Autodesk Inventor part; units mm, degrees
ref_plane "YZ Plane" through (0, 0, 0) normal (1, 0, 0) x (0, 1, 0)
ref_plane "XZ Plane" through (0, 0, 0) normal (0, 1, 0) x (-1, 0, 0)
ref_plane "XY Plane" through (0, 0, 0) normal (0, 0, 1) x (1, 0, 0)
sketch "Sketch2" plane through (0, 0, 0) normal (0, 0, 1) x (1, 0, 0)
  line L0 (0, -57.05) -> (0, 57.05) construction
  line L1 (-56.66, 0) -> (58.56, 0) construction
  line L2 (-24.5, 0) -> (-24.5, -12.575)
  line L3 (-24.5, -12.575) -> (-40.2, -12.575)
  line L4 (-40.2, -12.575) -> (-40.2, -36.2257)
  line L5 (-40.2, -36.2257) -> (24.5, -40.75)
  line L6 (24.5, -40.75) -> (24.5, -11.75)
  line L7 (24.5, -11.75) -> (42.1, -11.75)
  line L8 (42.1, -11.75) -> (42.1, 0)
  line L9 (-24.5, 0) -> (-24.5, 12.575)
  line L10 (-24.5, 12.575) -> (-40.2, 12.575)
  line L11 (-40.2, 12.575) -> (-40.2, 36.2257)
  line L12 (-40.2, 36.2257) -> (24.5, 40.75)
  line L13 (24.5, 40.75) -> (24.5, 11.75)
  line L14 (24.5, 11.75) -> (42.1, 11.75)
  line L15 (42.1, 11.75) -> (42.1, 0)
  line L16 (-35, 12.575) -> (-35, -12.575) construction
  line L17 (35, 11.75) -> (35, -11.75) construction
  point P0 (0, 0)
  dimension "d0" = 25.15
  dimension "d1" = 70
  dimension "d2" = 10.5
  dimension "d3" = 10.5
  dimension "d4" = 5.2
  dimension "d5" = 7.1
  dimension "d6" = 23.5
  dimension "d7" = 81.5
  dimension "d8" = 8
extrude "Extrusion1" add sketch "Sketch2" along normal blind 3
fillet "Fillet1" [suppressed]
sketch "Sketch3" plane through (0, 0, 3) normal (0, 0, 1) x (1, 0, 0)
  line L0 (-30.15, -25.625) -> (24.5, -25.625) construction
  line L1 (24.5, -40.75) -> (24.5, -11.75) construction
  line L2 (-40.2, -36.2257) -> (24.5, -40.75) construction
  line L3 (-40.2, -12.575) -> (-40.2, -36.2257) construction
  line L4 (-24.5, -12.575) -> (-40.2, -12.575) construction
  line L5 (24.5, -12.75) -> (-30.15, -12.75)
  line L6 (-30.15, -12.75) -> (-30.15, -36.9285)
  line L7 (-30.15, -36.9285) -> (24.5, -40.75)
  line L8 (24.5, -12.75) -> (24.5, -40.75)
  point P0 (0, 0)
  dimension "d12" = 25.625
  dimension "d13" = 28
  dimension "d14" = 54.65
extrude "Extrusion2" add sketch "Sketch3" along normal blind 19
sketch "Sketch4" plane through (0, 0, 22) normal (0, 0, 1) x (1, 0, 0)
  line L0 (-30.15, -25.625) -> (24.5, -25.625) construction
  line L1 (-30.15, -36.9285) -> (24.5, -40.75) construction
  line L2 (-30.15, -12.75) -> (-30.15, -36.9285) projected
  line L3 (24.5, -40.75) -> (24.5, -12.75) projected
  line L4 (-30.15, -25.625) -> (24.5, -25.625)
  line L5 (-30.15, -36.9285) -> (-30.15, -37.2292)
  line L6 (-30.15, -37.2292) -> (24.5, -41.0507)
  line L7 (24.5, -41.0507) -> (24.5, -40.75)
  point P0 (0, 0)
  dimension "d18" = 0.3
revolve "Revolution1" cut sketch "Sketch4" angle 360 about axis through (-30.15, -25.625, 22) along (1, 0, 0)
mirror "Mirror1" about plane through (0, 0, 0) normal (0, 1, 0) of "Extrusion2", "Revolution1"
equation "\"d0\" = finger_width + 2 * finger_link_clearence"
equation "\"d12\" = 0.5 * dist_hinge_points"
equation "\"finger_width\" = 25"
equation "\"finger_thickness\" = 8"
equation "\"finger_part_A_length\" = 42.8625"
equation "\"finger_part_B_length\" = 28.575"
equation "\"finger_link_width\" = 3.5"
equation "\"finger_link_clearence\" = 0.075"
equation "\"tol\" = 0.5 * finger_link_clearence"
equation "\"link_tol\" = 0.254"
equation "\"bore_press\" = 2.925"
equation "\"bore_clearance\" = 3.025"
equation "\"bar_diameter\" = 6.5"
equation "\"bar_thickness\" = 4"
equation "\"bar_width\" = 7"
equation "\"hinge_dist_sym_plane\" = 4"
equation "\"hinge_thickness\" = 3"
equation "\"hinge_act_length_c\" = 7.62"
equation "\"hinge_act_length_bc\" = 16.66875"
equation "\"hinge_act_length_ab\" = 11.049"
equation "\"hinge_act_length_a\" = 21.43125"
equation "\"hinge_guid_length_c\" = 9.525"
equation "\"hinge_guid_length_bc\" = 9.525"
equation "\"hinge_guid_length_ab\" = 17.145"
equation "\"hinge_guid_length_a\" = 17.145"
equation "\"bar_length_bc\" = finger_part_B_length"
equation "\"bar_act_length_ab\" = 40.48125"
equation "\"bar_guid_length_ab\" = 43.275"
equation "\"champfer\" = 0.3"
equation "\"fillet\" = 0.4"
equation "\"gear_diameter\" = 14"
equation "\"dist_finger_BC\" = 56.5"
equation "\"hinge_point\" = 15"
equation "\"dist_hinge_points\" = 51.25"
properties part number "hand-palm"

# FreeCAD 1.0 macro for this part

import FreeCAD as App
import Part
import Sketcher
from FreeCAD import Vector
Q = App.Units.Quantity

doc = App.newDocument("Part")
body = doc.addObject("PartDesign::Body", "Body")

sketch1 = doc.addObject("Sketcher::SketchObject", "Sketch")
body.addObject(sketch1)
sketch1.AttachmentSupport = (doc.XY_Plane, [""])
sketch1.MapMode = "FlatFace"
sketch1.addGeometry([
    Part.LineSegment(Vector(-24.5, 12.575, 0), Vector(-24.5, -12.575, 0)),
    Part.LineSegment(Vector(-24.5, -12.575, 0), Vector(-40.2, -12.575, 0)),
    Part.LineSegment(Vector(-40.2, -12.575, 0), Vector(-40.2, -36.2257, 0)),
    Part.LineSegment(Vector(-40.2, -36.2257, 0), Vector(24.5, -40.75, 0)),
    Part.LineSegment(Vector(24.5, -40.75, 0), Vector(24.5, -11.75, 0)),
    Part.LineSegment(Vector(24.5, -11.75, 0), Vector(42.1, -11.75, 0)),
    Part.LineSegment(Vector(42.1, -11.75, 0), Vector(42.1, 11.75, 0)),
    Part.LineSegment(Vector(42.1, 11.75, 0), Vector(24.5, 11.75, 0)),
    Part.LineSegment(Vector(24.5, 11.75, 0), Vector(24.5, 40.75, 0)),
    Part.LineSegment(Vector(24.5, 40.75, 0), Vector(-40.2, 36.2257, 0)),
    Part.LineSegment(Vector(-40.2, 36.2257, 0), Vector(-40.2, 12.575, 0)),
    Part.LineSegment(Vector(-40.2, 12.575, 0), Vector(-24.5, 12.575, 0)),
], False)
sketch1.addConstraint([
    Sketcher.Constraint("Coincident", 0, 2, 1, 1),
    Sketcher.Constraint("Coincident", 1, 2, 2, 1),
    Sketcher.Constraint("Coincident", 2, 2, 3, 1),
    Sketcher.Constraint("Coincident", 3, 2, 4, 1),
    Sketcher.Constraint("Coincident", 4, 2, 5, 1),
    Sketcher.Constraint("Coincident", 5, 2, 6, 1),
    Sketcher.Constraint("Coincident", 6, 2, 7, 1),
    Sketcher.Constraint("Coincident", 7, 2, 8, 1),
    Sketcher.Constraint("Coincident", 8, 2, 9, 1),
    Sketcher.Constraint("Coincident", 9, 2, 10, 1),
    Sketcher.Constraint("Coincident", 10, 2, 11, 1),
    Sketcher.Constraint("Coincident", 11, 2, 0, 1),
    Sketcher.Constraint("Vertical", 0),
    Sketcher.Constraint("Horizontal", 1),
    Sketcher.Constraint("Vertical", 2),
    Sketcher.Constraint("Vertical", 4),
    Sketcher.Constraint("Horizontal", 5),
    Sketcher.Constraint("Vertical", 6),
    Sketcher.Constraint("Horizontal", 7),
    Sketcher.Constraint("Vertical", 8),
    Sketcher.Constraint("Vertical", 10),
    Sketcher.Constraint("Horizontal", 11),
    Sketcher.Constraint("Symmetric", 4, 2, 7, 2, -1),
    Sketcher.Constraint("Symmetric", 2, 2, 9, 2, -1),
    Sketcher.Constraint("Equal", 4, 8),
    Sketcher.Constraint("Equal", 2, 10),
    Sketcher.Constraint("DistanceY", 6, 1, 6, 2, 23.5),
    Sketcher.Constraint("DistanceY", 0, 2, 0, 1, 25.15),
    Sketcher.Constraint("DistanceY", 4, 1, 4, 2, 29.0),
    Sketcher.Constraint("Angle", 3, Q("-4 deg")),
    Sketcher.Constraint("DistanceX", 1, 2, 1, 1, 15.7),
    Sketcher.Constraint("DistanceX", 5, 1, 5, 2, 17.6),
    Sketcher.Constraint("DistanceX", 0, 2, 3, 2, 49.0),
    Sketcher.Constraint("DistanceX", 0, 2, -1, 1, 24.5),
])
pad1 = doc.addObject("PartDesign::Pad", "Pad")
body.addObject(pad1)
pad1.Profile = sketch1
pad1.Length = 3

sketch2 = doc.addObject("Sketcher::SketchObject", "Sketch001")
body.addObject(sketch2)
sketch2.AttachmentSupport = (doc.XY_Plane, [""])
sketch2.MapMode = "FlatFace"
sketch2.AttachmentOffset = App.Placement(Vector(0, 0, 3), App.Rotation())
sketch2.addGeometry([
    Part.LineSegment(Vector(24.5, -40.75, 0), Vector(24.5, -12.75, 0)),
    Part.LineSegment(Vector(24.5, -12.75, 0), Vector(-30.15, -12.75, 0)),
    Part.LineSegment(Vector(-30.15, -12.75, 0), Vector(-30.15, -36.9285, 0)),
    Part.LineSegment(Vector(-30.15, -36.9285, 0), Vector(24.5, -40.75, 0)),
], False)
sketch2.addConstraint([
    Sketcher.Constraint("Coincident", 0, 2, 1, 1),
    Sketcher.Constraint("Coincident", 1, 2, 2, 1),
    Sketcher.Constraint("Coincident", 2, 2, 3, 1),
    Sketcher.Constraint("Coincident", 3, 2, 0, 1),
    Sketcher.Constraint("Vertical", 0),
    Sketcher.Constraint("Horizontal", 1),
    Sketcher.Constraint("Vertical", 2),
    Sketcher.Constraint("DistanceY", 0, 1, 0, 2, 28.0),
    Sketcher.Constraint("DistanceX", 1, 2, 1, 1, 54.65),
    Sketcher.Constraint("Angle", 3, Q("-4 deg")),
    Sketcher.Constraint("DistanceX", -1, 1, 0, 2, 24.5),
    Sketcher.Constraint("DistanceY", 0, 2, -1, 1, 12.75),
])
pad2 = doc.addObject("PartDesign::Pad", "Pad001")
body.addObject(pad2)
pad2.Profile = sketch2
pad2.Length = 19

sketch3 = doc.addObject("Sketcher::SketchObject", "Sketch002")
body.addObject(sketch3)
sketch3.AttachmentSupport = (doc.XY_Plane, [""])
sketch3.MapMode = "FlatFace"
sketch3.AttachmentOffset = App.Placement(Vector(0, 0, 22), App.Rotation())
sketch3.addGeometry([
    Part.LineSegment(Vector(24.5, -25.625, 0), Vector(-30.15, -25.625, 0)),
    Part.LineSegment(Vector(-30.15, -25.625, 0), Vector(-30.15, -37.2292, 0)),
    Part.LineSegment(Vector(-30.15, -37.2292, 0), Vector(24.5, -41.0507, 0)),
    Part.LineSegment(Vector(24.5, -41.0507, 0), Vector(24.5, -25.625, 0)),
], False)
sketch3.addGeometry(Part.LineSegment(Vector(-30.15, -25.625, 0), Vector(24.5, -25.625, 0)), True)
sketch3.addConstraint([
    Sketcher.Constraint("Coincident", 0, 2, 1, 1),
    Sketcher.Constraint("Coincident", 1, 2, 2, 1),
    Sketcher.Constraint("Coincident", 2, 2, 3, 1),
    Sketcher.Constraint("Coincident", 3, 2, 0, 1),
    Sketcher.Constraint("Horizontal", 0),
    Sketcher.Constraint("Vertical", 1),
    Sketcher.Constraint("Vertical", 3),
    Sketcher.Constraint("Horizontal", 4),
    Sketcher.Constraint("Coincident", 4, 1, 0, 2),
    Sketcher.Constraint("Vertical", 2, 2, 4, 2),
    Sketcher.Constraint("Angle", 2, Q("-4 deg")),
    Sketcher.Constraint("DistanceX", 0, 2, 0, 1, 54.65),
    Sketcher.Constraint("DistanceX", -1, 1, 2, 2, 24.5),
    Sketcher.Constraint("DistanceY", 1, 2, 1, 1, 11.6042),
    Sketcher.Constraint("DistanceY", 0, 2, -1, 1, 25.625),
])
groove = doc.addObject("PartDesign::Groove", "Groove")
body.addObject(groove)
groove.Profile = sketch3
groove.ReferenceAxis = (sketch3, ["Axis0"])
groove.Angle = 360
doc.recompute()

mirrored = doc.addObject("PartDesign::Mirrored", "Mirrored")
body.addObject(mirrored)
mirrored.Originals = [pad2, groove]
mirrored.MirrorPlane = (doc.XZ_Plane, [""])
body.Tip = mirrored

doc.recompute()
